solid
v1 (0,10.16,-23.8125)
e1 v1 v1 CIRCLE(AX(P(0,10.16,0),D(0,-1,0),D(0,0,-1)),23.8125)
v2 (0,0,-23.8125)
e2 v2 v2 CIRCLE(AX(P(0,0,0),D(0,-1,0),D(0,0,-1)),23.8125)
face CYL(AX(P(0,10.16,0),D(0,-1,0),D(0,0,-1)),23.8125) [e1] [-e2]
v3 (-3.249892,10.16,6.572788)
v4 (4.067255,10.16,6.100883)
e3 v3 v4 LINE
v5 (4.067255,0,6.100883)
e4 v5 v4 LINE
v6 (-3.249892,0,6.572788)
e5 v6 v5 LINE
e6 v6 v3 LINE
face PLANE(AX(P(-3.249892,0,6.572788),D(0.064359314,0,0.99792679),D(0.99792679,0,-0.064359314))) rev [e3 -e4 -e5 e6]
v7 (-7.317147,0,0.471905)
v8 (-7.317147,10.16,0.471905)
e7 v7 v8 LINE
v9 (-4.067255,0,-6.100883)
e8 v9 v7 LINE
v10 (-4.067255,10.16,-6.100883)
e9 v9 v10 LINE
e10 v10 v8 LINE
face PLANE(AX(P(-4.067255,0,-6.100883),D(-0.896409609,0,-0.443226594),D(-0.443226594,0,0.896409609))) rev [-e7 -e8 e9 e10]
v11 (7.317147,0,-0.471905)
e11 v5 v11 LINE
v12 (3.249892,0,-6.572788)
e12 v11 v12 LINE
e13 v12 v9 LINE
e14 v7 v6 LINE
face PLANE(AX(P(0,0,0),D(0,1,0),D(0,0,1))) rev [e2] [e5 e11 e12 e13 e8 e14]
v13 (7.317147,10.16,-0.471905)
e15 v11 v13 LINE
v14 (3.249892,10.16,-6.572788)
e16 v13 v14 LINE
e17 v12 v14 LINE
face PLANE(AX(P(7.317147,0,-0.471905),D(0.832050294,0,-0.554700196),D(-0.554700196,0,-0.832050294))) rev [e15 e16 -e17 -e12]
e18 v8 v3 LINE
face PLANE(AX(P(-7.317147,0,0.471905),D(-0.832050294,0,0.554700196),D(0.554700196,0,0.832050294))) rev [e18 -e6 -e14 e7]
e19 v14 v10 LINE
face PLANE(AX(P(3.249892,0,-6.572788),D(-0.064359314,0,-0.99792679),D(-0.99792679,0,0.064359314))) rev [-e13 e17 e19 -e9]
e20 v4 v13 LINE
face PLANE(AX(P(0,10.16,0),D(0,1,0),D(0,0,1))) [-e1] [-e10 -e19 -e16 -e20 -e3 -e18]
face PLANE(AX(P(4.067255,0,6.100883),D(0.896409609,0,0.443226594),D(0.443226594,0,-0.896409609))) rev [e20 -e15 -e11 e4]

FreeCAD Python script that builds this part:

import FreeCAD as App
import Part
import Sketcher

V = App.Vector
Q = App.Units.Quantity


def add_polygon(sketch, points):
    """Adds a closed chain of lines whose ends are joined by coincident constraints."""
    first, n = sketch.GeometryCount, len(points)
    for a, b in zip(points, points[1:] + points[:1]):
        sketch.addGeometry(Part.LineSegment(App.Vector(*a, 0), App.Vector(*b, 0)), False)
    for i in range(n):
        sketch.addConstraint(Sketcher.Constraint("Coincident", first + i, 2, first + (i + 1) % n, 1))

doc = App.newDocument("Part")
body = doc.addObject("PartDesign::Body", "Body")

# Sketch on XZ plane
sketch1 = doc.addObject("Sketcher::SketchObject", "Sketch")
body.addObject(sketch1)
sketch1.AttachmentSupport = (doc.XZ_Plane, [""])
sketch1.MapMode = "FlatFace"
sketch1.addGeometry(Part.Circle(V(0, 0, 0), V(0, 0, 1), 30), False)
sketch1.addConstraint([
    Sketcher.Constraint("Coincident", 0, 3, -1, 1),
    Sketcher.Constraint("Diameter", 0, Q("2.375 in")),
])
pad1 = doc.addObject("PartDesign::Pad", "Pad")
body.addObject(pad1)
pad1.Profile = sketch1
pad1.Length = Q("0.4 in")
pad1.Reversed = True

# Sketch on XZ plane
sketch2 = doc.addObject("Sketcher::SketchObject", "Sketch001")
body.addObject(sketch2)
sketch2.AttachmentSupport = (doc.XZ_Plane, [""])
sketch2.MapMode = "FlatFace"
sketch2.AttachmentOffset = App.Placement(V(0, 0, -0.4 * 25.4), App.Rotation())
add_polygon(sketch2, [(4, 6), (7, 0), (3, -7), (-4, -6), (-7, 0), (-3, 7)])  # lines 0-5
sketch2.addConstraint([
    Sketcher.Constraint("Symmetric", 0, 2, 3, 2, -1, 1),
    Sketcher.Constraint("Symmetric", 1, 2, 4, 2, -1, 1),
    Sketcher.Constraint("Symmetric", 2, 2, 5, 2, -1, 1),
    Sketcher.Constraint("Equal", 0, 1),
    Sketcher.Constraint("Equal", 1, 2),
    Sketcher.Constraint("Distance", 0, Q("7.332348 mm")),
    Sketcher.Constraint("DistanceX", -1, 1, 1, 2, Q("3.249892 mm")),
    Sketcher.Constraint("DistanceX", 3, 2, 2, 2, Q("3.249892 mm")),
    Sketcher.Constraint("DistanceX", 3, 2, 1, 2, Q("10.567039 mm")),
])
pocket1 = doc.addObject("PartDesign::Pocket", "Pocket")
body.addObject(pocket1)
pocket1.Profile = sketch2
pocket1.Type = "ThroughAll"
pocket1.Reversed = True

# Sketch on XZ plane
sketch3 = doc.addObject("Sketcher::SketchObject", "Sketch002")
body.addObject(sketch3)
sketch3.AttachmentSupport = (doc.XZ_Plane, [""])
sketch3.MapMode = "FlatFace"
sketch3.addGeometry([
    Part.Circle(V(0, 0, 0), V(0, 0, 1), 30),
    Part.Circle(V(0, 0, 0), V(0, 0, 1), 24),
], False)
sketch3.addConstraint([
    Sketcher.Constraint("Coincident", 0, 3, -1, 1),
    Sketcher.Constraint("Coincident", 1, 3, -1, 1),
    Sketcher.Constraint("Diameter", 0, Q("2.375 in")),
    Sketcher.Constraint("Diameter", 1, Q("1.875 in")),
])
pocket2 = doc.addObject("PartDesign::Pocket", "Pocket001")
body.addObject(pocket2)
pocket2.Profile = sketch3
pocket2.Type = "ThroughAll"

doc.recompute()
